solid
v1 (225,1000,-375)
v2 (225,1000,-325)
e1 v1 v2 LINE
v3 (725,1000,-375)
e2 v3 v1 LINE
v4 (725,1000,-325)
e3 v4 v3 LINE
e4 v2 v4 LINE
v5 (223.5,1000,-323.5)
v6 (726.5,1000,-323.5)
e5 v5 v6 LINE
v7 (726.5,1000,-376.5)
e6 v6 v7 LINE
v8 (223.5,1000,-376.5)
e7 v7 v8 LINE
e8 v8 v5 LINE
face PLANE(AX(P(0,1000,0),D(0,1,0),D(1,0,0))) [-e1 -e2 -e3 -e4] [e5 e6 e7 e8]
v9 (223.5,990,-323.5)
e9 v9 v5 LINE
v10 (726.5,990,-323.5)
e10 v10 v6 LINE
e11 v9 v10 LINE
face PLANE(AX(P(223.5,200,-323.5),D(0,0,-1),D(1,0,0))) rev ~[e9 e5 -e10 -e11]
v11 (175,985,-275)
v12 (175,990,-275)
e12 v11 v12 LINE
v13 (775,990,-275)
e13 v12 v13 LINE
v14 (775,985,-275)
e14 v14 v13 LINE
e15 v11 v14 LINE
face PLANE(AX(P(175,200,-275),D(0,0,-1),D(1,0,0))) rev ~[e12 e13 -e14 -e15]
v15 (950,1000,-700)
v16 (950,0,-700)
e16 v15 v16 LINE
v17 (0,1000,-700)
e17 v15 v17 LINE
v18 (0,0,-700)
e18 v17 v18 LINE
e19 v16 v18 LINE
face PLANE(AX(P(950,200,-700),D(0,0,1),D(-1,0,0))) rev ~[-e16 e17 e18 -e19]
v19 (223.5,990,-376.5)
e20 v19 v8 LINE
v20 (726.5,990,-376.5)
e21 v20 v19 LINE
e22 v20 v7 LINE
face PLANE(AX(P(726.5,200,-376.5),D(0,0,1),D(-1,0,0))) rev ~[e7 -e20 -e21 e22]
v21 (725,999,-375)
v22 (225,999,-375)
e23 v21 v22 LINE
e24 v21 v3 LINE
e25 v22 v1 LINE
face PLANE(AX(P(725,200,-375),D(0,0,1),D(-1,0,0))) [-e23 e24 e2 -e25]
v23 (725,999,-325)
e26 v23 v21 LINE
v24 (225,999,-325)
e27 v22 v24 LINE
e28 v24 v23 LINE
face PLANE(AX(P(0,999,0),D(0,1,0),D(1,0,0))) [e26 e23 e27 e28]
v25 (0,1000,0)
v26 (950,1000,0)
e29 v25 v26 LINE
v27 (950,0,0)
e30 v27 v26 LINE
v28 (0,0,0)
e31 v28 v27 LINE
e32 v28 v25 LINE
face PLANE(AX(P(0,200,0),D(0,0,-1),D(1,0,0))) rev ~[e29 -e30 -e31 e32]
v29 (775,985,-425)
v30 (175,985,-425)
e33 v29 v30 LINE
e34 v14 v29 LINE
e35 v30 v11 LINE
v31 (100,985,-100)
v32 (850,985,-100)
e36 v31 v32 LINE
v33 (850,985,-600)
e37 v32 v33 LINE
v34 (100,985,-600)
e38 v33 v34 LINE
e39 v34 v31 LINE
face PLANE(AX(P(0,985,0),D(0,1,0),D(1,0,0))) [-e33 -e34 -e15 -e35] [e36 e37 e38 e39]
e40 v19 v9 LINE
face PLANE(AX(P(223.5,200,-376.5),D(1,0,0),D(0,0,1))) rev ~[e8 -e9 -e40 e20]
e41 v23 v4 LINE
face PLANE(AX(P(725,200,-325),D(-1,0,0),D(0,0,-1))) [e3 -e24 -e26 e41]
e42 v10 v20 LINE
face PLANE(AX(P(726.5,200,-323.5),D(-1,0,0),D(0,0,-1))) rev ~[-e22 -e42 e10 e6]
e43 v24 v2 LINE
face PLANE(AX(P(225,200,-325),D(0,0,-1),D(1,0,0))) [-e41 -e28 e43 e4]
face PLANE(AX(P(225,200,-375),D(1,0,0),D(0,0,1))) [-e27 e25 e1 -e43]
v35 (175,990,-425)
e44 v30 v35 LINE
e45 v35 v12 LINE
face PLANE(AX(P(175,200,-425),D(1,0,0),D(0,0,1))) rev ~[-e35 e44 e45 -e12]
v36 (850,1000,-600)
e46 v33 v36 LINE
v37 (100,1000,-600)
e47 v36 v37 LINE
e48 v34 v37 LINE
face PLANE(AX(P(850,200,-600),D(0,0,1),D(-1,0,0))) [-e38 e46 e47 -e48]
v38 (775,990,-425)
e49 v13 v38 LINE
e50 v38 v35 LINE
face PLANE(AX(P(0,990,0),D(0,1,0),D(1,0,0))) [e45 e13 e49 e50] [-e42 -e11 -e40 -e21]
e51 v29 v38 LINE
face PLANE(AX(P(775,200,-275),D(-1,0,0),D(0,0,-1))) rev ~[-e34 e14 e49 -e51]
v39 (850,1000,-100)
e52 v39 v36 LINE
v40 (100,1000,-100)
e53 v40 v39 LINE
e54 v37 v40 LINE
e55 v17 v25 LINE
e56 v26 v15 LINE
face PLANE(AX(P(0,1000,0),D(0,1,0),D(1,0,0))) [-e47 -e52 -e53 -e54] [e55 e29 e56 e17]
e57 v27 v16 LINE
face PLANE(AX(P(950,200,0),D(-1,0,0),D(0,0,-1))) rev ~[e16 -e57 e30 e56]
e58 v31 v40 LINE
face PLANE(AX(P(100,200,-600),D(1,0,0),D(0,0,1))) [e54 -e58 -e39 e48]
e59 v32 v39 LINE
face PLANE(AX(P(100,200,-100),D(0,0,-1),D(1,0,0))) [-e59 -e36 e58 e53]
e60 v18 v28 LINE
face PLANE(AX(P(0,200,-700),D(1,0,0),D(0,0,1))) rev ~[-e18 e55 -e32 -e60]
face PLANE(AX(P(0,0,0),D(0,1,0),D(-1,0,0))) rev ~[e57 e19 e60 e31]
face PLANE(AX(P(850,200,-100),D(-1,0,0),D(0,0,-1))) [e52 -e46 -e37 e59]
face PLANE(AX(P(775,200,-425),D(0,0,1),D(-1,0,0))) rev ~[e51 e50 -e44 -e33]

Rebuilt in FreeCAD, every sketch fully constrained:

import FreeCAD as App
import Part
import Sketcher
from FreeCAD import Vector


def add_polygon(sketch, points):
    """Adds a closed chain of lines whose ends are joined by coincident constraints."""
    first, n = sketch.GeometryCount, len(points)
    for a, b in zip(points, points[1:] + points[:1]):
        sketch.addGeometry(Part.LineSegment(App.Vector(*a, 0), App.Vector(*b, 0)), False)
    for i in range(n):
        sketch.addConstraint(Sketcher.Constraint("Coincident", first + i, 2, first + (i + 1) % n, 1))

doc = App.newDocument("Part")
body = doc.addObject("PartDesign::Body", "Body")

# Sketch on XZ plane
sketch1 = doc.addObject("Sketcher::SketchObject", "Sketch")
body.addObject(sketch1)
sketch1.AttachmentSupport = (doc.XZ_Plane, [""])
sketch1.MapMode = "FlatFace"
add_polygon(sketch1, [(0, -700), (0, 0), (950, 0), (950, -700)])  # lines 0-3
sketch1.addConstraint([
    Sketcher.Constraint("Vertical", 0),
    Sketcher.Constraint("Horizontal", 1),
    Sketcher.Constraint("Vertical", 2),
    Sketcher.Constraint("Horizontal", 3),
    Sketcher.Constraint("Coincident", 0, 2, -1, 1),
    Sketcher.Constraint("DistanceX", 1, 1, 1, 2, 950.0),
    Sketcher.Constraint("DistanceY", 0, 1, 0, 2, 700.0),
])
pad1 = doc.addObject("PartDesign::Pad", "Pad")
body.addObject(pad1)
pad1.Profile = sketch1
pad1.Length = 200
pad1.Reversed = True

# Sketch on XZ plane
sketch2 = doc.addObject("Sketcher::SketchObject", "Sketch001")
body.addObject(sketch2)
sketch2.AttachmentSupport = (doc.XZ_Plane, [""])
sketch2.MapMode = "FlatFace"
sketch2.AttachmentOffset = App.Placement(Vector(0, 0, -200), App.Rotation())
add_polygon(sketch2, [(224, -376), (224, -324), (726, -324), (726, -376)])  # lines 0-3
add_polygon(sketch2, [(725, -325), (225, -325), (225, -375), (725, -375)])  # lines 4-7
sketch2.addConstraint([
    Sketcher.Constraint("Vertical", 0),
    Sketcher.Constraint("Horizontal", 1),
    Sketcher.Constraint("Vertical", 2),
    Sketcher.Constraint("Horizontal", 3),
    Sketcher.Constraint("Horizontal", 4),
    Sketcher.Constraint("Vertical", 5),
    Sketcher.Constraint("Horizontal", 6),
    Sketcher.Constraint("Vertical", 7),
    Sketcher.Constraint("DistanceX", 4, 2, 4, 1, 500.0),
    Sketcher.Constraint("DistanceY", 5, 2, 5, 1, 50.0),
    Sketcher.Constraint("DistanceX", 0, 2, 4, 2, 1.5),
    Sketcher.Constraint("DistanceY", 4, 2, 0, 2, 1.5),
    Sketcher.Constraint("DistanceY", 3, 2, 5, 2, 1.5),
    Sketcher.Constraint("DistanceX", 6, 2, 2, 2, 1.5),
    Sketcher.Constraint("DistanceX", -1, 1, 4, 2, 225.0),
    Sketcher.Constraint("DistanceY", 4, 2, -1, 1, 325.0),
])
pad2 = doc.addObject("PartDesign::Pad", "Pad001")
body.addObject(pad2)
pad2.Profile = sketch2
pad2.Length = 800
pad2.Reversed = True

# Sketch on XZ plane
sketch3 = doc.addObject("Sketcher::SketchObject", "Sketch002")
body.addObject(sketch3)
sketch3.AttachmentSupport = (doc.XZ_Plane, [""])
sketch3.MapMode = "FlatFace"
sketch3.AttachmentOffset = App.Placement(Vector(0, 0, -200), App.Rotation())
add_polygon(sketch3, [(175, -425), (175, -275), (775, -275), (775, -425)])  # lines 0-3
add_polygon(sketch3, [(726, -324), (224, -324), (224, -376), (726, -376)])  # lines 4-7
sketch3.addConstraint([
    Sketcher.Constraint("Vertical", 0),
    Sketcher.Constraint("Horizontal", 1),
    Sketcher.Constraint("Vertical", 2),
    Sketcher.Constraint("Horizontal", 3),
    Sketcher.Constraint("Horizontal", 4),
    Sketcher.Constraint("Vertical", 5),
    Sketcher.Constraint("Horizontal", 6),
    Sketcher.Constraint("Vertical", 7),
    Sketcher.Constraint("DistanceX", 1, 1, 1, 2, 600.0),
    Sketcher.Constraint("DistanceY", 0, 1, 0, 2, 150.0),
    Sketcher.Constraint("DistanceX", -1, 1, 0, 2, 175.0),
    Sketcher.Constraint("DistanceX", 4, 2, 4, 1, 503.0),
    Sketcher.Constraint("DistanceY", 5, 2, 5, 1, 53.0),
    Sketcher.Constraint("DistanceY", 0, 2, -1, 1, 275.0),
    Sketcher.Constraint("DistanceX", -1, 1, 4, 2, 223.5),
    Sketcher.Constraint("DistanceY", 4, 2, -1, 1, 323.5),
])
pad3 = doc.addObject("PartDesign::Pad", "Pad002")
body.addObject(pad3)
pad3.Profile = sketch3
pad3.Length = 790
pad3.Reversed = True

# Sketch on XZ plane
sketch4 = doc.addObject("Sketcher::SketchObject", "Sketch003")
body.addObject(sketch4)
sketch4.AttachmentSupport = (doc.XZ_Plane, [""])
sketch4.MapMode = "FlatFace"
sketch4.AttachmentOffset = App.Placement(Vector(0, 0, -200), App.Rotation())
add_polygon(sketch4, [(100, -600), (100, -100), (850, -100), (850, -600)])  # lines 0-3
add_polygon(sketch4, [(775, -275), (175, -275), (175, -425), (775, -425)])  # lines 4-7
sketch4.addConstraint([
    Sketcher.Constraint("Vertical", 0),
    Sketcher.Constraint("Horizontal", 1),
    Sketcher.Constraint("Vertical", 2),
    Sketcher.Constraint("Horizontal", 3),
    Sketcher.Constraint("Horizontal", 4),
    Sketcher.Constraint("Vertical", 5),
    Sketcher.Constraint("Horizontal", 6),
    Sketcher.Constraint("Vertical", 7),
    Sketcher.Constraint("DistanceX", 1, 1, 1, 2, 750.0),
    Sketcher.Constraint("DistanceX", 4, 2, 4, 1, 600.0),
    Sketcher.Constraint("DistanceY", 0, 1, 0, 2, 500.0),
    Sketcher.Constraint("DistanceY", 5, 2, 5, 1, 150.0),
    Sketcher.Constraint("DistanceX", -1, 1, 0, 2, 100.0),
    Sketcher.Constraint("DistanceY", 0, 2, -1, 1, 100.0),
    Sketcher.Constraint("DistanceX", -1, 1, 4, 2, 175.0),
    Sketcher.Constraint("DistanceY", 4, 2, 0, 2, 175.0),
])
pad4 = doc.addObject("PartDesign::Pad", "Pad003")
body.addObject(pad4)
pad4.Profile = sketch4
pad4.Length = 785
pad4.Reversed = True

# Sketch on XZ plane
sketch5 = doc.addObject("Sketcher::SketchObject", "Sketch004")
body.addObject(sketch5)
sketch5.AttachmentSupport = (doc.XZ_Plane, [""])
sketch5.MapMode = "FlatFace"
sketch5.AttachmentOffset = App.Placement(Vector(0, 0, -200), App.Rotation())
add_polygon(sketch5, [(0, -700), (0, 0), (950, 0), (950, -700)])  # lines 0-3
add_polygon(sketch5, [(850, -100), (100, -100), (100, -600), (850, -600)])  # lines 4-7
sketch5.addConstraint([
    Sketcher.Constraint("Vertical", 0),
    Sketcher.Constraint("Horizontal", 1),
    Sketcher.Constraint("Vertical", 2),
    Sketcher.Constraint("Horizontal", 3),
    Sketcher.Constraint("Horizontal", 4),
    Sketcher.Constraint("Vertical", 5),
    Sketcher.Constraint("Horizontal", 6),
    Sketcher.Constraint("Vertical", 7),
    Sketcher.Constraint("Coincident", 0, 2, -1, 1),
    Sketcher.Constraint("DistanceX", 4, 2, 4, 1, 750.0),
    Sketcher.Constraint("DistanceY", 5, 2, 5, 1, 500.0),
    Sketcher.Constraint("DistanceX", -1, 1, 4, 2, 100.0),
    Sketcher.Constraint("DistanceY", 4, 2, -1, 1, 100.0),
    Sketcher.Constraint("DistanceY", 3, 2, 4, 2, 600.0),
    Sketcher.Constraint("DistanceX", 6, 2, 2, 2, 100.0),
])
pad5 = doc.addObject("PartDesign::Pad", "Pad004")
body.addObject(pad5)
pad5.Profile = sketch5
pad5.Length = 800
pad5.Reversed = True

# Sketch on XZ plane
sketch6 = doc.addObject("Sketcher::SketchObject", "Sketch005")
body.addObject(sketch6)
sketch6.AttachmentSupport = (doc.XZ_Plane, [""])
sketch6.MapMode = "FlatFace"
sketch6.AttachmentOffset = App.Placement(Vector(0, 0, -200), App.Rotation())
add_polygon(sketch6, [(225, -375), (225, -325), (725, -325), (725, -375)])  # lines 0-3
sketch6.addConstraint([
    Sketcher.Constraint("Vertical", 0),
    Sketcher.Constraint("Horizontal", 1),
    Sketcher.Constraint("Vertical", 2),
    Sketcher.Constraint("Horizontal", 3),
    Sketcher.Constraint("DistanceX", 1, 1, 1, 2, 500.0),
    Sketcher.Constraint("DistanceY", 0, 1, 0, 2, 50.0),
    Sketcher.Constraint("DistanceX", -1, 1, 0, 2, 225.0),
    Sketcher.Constraint("DistanceY", 0, 2, -1, 1, 325.0),
])
pad6 = doc.addObject("PartDesign::Pad", "Pad005")
body.addObject(pad6)
pad6.Profile = sketch6
pad6.Length = 799
pad6.Reversed = True

doc.recompute()
